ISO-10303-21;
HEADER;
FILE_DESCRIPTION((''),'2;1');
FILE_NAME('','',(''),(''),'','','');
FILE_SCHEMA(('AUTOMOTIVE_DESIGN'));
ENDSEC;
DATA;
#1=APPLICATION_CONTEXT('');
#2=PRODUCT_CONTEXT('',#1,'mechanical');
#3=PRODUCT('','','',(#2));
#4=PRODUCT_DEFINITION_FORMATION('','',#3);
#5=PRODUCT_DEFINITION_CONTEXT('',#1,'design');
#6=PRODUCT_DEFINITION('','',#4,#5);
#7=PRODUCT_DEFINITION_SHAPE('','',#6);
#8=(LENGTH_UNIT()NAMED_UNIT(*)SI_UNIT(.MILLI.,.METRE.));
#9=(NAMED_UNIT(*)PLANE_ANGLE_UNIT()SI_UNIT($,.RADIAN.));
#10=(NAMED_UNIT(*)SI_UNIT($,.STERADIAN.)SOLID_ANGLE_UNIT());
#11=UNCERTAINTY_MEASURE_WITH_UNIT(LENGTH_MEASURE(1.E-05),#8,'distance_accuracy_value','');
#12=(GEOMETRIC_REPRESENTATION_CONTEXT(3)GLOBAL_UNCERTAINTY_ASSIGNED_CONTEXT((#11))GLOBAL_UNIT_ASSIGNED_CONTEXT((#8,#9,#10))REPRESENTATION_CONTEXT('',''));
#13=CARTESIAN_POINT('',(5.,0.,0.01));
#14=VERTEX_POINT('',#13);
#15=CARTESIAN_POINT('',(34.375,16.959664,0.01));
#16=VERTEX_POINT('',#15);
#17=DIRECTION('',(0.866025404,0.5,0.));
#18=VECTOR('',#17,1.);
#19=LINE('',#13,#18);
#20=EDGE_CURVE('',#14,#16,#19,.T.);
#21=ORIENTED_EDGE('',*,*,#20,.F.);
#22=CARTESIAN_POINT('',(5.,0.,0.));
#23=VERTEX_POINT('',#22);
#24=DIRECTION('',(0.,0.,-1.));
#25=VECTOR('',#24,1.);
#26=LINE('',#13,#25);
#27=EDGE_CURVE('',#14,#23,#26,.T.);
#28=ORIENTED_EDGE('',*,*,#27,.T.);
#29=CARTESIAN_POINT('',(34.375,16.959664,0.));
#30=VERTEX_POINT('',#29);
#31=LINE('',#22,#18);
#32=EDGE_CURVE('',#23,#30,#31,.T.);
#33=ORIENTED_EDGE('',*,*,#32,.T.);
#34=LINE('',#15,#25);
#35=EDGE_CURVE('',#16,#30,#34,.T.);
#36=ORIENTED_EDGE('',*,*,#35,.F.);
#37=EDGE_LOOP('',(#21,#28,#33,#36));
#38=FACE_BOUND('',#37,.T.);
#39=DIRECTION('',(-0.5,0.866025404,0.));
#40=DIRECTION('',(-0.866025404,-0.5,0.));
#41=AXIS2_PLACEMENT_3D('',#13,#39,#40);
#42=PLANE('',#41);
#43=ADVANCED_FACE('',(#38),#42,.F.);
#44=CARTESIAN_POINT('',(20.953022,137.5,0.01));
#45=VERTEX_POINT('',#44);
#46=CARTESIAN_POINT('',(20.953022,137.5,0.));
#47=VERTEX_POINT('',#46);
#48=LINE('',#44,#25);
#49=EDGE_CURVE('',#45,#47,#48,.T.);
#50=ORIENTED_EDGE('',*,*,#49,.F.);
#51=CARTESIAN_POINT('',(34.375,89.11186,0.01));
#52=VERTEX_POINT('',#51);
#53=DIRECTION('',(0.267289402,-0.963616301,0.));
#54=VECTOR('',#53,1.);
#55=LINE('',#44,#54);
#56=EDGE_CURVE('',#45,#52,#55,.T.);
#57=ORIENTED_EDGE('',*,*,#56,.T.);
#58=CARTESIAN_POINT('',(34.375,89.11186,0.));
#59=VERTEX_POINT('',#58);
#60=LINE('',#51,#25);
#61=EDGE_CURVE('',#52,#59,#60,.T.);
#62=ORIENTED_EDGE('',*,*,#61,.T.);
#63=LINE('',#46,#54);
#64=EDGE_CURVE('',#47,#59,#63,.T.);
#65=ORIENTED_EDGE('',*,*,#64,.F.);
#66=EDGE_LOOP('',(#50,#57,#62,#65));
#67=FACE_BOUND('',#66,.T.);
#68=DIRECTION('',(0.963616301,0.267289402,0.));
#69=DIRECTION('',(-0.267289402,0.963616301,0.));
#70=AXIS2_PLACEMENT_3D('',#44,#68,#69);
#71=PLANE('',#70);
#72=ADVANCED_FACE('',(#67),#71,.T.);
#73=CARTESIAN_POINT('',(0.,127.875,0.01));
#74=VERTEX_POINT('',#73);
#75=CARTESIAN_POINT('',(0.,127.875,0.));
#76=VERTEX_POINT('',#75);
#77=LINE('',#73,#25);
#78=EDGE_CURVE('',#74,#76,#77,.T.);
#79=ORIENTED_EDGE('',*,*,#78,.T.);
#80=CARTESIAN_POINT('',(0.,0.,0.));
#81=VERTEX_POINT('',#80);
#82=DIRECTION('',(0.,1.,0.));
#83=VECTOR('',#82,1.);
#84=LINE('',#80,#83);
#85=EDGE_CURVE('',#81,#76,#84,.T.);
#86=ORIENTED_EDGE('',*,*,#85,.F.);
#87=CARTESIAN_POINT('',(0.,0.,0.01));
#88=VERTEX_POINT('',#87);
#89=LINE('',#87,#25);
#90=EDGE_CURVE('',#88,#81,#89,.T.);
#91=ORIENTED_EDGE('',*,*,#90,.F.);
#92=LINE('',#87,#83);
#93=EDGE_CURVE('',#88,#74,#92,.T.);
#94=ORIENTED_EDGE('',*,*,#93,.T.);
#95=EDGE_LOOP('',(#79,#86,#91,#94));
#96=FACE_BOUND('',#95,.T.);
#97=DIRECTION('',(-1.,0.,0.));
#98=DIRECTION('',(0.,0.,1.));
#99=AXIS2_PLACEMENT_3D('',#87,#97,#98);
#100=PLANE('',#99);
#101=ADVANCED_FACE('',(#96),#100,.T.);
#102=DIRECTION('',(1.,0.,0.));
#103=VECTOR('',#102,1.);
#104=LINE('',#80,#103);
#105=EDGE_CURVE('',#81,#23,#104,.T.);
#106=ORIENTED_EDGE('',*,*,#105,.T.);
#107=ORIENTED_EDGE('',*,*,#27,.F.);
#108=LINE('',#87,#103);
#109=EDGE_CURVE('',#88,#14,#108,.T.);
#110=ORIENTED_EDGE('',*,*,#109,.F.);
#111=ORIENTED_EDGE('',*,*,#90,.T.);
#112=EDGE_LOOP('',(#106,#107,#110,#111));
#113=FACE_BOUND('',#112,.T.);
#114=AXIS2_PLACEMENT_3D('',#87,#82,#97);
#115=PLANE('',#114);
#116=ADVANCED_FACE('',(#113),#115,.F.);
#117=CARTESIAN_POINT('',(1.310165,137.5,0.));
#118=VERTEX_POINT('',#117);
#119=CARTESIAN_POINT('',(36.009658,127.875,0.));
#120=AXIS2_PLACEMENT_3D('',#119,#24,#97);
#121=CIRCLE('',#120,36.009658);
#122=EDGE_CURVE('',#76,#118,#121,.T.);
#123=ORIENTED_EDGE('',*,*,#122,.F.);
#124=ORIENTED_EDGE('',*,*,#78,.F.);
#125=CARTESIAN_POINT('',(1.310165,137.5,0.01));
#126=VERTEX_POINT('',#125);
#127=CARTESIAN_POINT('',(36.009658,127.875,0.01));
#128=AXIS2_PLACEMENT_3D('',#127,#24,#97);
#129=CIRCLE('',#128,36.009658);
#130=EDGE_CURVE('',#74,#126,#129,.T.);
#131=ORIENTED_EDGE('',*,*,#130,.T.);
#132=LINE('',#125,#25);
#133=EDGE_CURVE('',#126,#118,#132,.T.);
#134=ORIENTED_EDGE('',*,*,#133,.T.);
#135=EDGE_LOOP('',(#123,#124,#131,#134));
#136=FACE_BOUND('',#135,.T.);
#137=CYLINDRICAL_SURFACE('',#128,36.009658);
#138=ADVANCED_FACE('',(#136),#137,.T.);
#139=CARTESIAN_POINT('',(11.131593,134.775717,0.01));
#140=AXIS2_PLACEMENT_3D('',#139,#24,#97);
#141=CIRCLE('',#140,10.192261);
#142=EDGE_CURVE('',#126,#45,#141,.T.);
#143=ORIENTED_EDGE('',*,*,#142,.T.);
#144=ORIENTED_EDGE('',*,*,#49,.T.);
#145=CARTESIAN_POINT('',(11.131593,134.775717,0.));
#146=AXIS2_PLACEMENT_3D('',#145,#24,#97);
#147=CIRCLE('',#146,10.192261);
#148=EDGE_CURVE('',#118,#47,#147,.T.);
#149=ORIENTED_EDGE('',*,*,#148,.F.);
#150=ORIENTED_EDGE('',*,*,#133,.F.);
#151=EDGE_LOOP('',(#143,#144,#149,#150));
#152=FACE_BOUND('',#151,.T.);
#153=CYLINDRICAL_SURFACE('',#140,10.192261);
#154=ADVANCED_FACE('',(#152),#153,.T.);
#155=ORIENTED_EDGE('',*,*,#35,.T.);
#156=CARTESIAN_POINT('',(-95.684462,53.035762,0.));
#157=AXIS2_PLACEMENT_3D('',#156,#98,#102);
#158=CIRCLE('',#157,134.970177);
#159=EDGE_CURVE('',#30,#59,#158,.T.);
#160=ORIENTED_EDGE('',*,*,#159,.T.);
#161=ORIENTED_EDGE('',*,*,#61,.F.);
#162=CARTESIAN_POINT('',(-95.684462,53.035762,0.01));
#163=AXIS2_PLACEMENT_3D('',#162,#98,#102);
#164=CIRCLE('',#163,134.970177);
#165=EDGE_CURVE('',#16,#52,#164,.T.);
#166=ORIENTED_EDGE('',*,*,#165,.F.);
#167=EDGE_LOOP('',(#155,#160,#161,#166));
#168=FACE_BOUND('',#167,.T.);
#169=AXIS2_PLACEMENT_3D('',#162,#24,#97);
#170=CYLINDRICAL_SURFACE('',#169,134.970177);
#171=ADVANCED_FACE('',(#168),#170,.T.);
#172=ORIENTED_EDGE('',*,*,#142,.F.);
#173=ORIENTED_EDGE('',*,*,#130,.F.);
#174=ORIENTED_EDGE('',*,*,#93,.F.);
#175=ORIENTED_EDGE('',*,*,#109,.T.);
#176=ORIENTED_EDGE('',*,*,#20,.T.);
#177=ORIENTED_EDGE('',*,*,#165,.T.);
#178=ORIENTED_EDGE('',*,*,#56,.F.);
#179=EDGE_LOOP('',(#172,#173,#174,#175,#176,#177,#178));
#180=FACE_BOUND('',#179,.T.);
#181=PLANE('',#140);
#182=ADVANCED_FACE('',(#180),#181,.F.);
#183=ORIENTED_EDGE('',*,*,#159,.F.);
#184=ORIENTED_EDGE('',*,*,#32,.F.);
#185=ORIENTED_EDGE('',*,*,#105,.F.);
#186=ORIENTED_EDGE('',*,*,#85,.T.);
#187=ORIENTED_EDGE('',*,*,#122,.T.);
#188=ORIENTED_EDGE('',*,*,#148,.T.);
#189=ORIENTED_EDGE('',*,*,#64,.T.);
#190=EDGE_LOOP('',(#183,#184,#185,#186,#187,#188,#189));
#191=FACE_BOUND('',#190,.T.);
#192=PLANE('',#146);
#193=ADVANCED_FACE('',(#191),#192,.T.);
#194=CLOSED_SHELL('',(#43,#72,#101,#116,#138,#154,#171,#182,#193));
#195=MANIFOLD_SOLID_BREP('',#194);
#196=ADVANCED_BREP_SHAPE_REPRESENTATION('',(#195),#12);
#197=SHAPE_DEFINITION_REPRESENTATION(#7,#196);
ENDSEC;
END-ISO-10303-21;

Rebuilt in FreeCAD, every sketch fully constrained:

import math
import FreeCAD as App
import Part
import Sketcher
Q = App.Units.Quantity

doc = App.newDocument("Part")
body = doc.addObject("PartDesign::Body", "Body")

# Sketch on XY plane
sketch1 = body.newObject("Sketcher::SketchObject", "Sketch")
sketch1.AttachmentSupport = (doc.getObject("XY_Plane"), [""])
sketch1.MapMode = "FlatFace"
sketch1.addGeometry(Part.LineSegment(App.Vector(0, 128, 0), App.Vector(0, 0, 0)), False)
sketch1.addGeometry(Part.LineSegment(App.Vector(0, 0, 0), App.Vector(5, 0, 0)), False)
sketch1.addGeometry(Part.LineSegment(App.Vector(5, 0, 0), App.Vector(34, 17, 0)), False)
sketch1.addGeometry(Part.ArcOfCircle(Part.Circle(App.Vector(-96, 53, 0), App.Vector(0, 0, 1), 135), math.radians(-16), math.radians(16)), False)
sketch1.addGeometry(Part.LineSegment(App.Vector(34, 89, 0), App.Vector(21, 138, 0)), False)
sketch1.addGeometry(Part.ArcOfCircle(Part.Circle(App.Vector(11, 135, 0), App.Vector(0, 0, 1), 10), math.radians(16), math.radians(164)), False)
sketch1.addGeometry(Part.ArcOfCircle(Part.Circle(App.Vector(36, 128, 0), App.Vector(0, 0, 1), 36), math.radians(164.5), math.radians(180)), False)
sketch1.addConstraint(Sketcher.Constraint("Coincident", 0, 2, 1, 1))
sketch1.addConstraint(Sketcher.Constraint("Coincident", 1, 2, 2, 1))
sketch1.addConstraint(Sketcher.Constraint("Coincident", 2, 2, 3, 1))
sketch1.addConstraint(Sketcher.Constraint("Tangent", 3, 2, 4, 1))
sketch1.addConstraint(Sketcher.Constraint("Tangent", 4, 2, 5, 1))
sketch1.addConstraint(Sketcher.Constraint("Tangent", 5, 2, 6, 1))
sketch1.addConstraint(Sketcher.Constraint("Tangent", 6, 2, 0, 1))
sketch1.addConstraint(Sketcher.Constraint("Vertical", 0))
sketch1.addConstraint(Sketcher.Constraint("Horizontal", 1))
sketch1.addConstraint(Sketcher.Constraint("Coincident", 0, 2, -1, 1))
sketch1.addConstraint(Sketcher.Constraint("Horizontal", 4, 2, 5, 2))
sketch1.addConstraint(Sketcher.Constraint("Vertical", 2, 2, 3, 2))
sketch1.addConstraint(Sketcher.Constraint("DistanceX", 1, 1, 1, 2, Q("5 mm")))
sketch1.addConstraint(Sketcher.Constraint("Angle", 2, Q("30 deg")))
sketch1.addConstraint(Sketcher.Constraint("DistanceY", -1, 1, 4, 2, Q("137.5 mm")))
sketch1.addConstraint(Sketcher.Constraint("DistanceY", 0, 2, 0, 1, Q("127.875 mm")))
sketch1.addConstraint(Sketcher.Constraint("Radius", 5, Q("10.192261 mm")))
sketch1.addConstraint(Sketcher.Constraint("Radius", 6, Q("36.009658 mm")))
sketch1.addConstraint(Sketcher.Constraint("DistanceX", -1, 1, 2, 2, Q("34.375 mm")))
pad1 = body.newObject("PartDesign::Pad", "Pad")
pad1.Profile = sketch1
pad1.Length = 0.01

doc.recompute()
